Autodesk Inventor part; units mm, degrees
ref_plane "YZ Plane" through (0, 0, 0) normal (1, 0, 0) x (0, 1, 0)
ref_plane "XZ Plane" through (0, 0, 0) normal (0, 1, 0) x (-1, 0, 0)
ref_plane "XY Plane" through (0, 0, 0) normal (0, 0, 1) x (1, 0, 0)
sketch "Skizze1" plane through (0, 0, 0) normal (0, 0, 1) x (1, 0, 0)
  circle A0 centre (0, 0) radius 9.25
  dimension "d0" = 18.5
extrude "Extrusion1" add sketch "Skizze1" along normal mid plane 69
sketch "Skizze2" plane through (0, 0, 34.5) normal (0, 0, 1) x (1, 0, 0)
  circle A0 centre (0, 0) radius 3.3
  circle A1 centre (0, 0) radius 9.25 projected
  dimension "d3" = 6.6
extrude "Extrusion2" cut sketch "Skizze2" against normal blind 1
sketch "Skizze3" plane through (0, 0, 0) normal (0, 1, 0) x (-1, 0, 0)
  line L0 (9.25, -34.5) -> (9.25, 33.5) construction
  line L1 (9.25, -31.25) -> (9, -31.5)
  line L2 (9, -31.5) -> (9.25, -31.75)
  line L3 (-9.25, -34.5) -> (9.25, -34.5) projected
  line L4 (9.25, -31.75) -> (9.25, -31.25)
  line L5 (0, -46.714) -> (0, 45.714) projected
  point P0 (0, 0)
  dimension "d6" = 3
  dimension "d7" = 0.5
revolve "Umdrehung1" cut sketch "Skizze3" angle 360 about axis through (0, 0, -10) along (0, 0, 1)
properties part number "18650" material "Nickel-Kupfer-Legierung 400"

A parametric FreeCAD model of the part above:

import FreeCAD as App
import Part
import Sketcher

V = App.Vector

doc = App.newDocument("Part")
body = doc.addObject("PartDesign::Body", "Body")

sketch1 = doc.addObject("Sketcher::SketchObject", "Sketch")
body.addObject(sketch1)
sketch1.AttachmentSupport = (doc.XY_Plane, [""])
sketch1.MapMode = "FlatFace"
sketch1.addGeometry(Part.Circle(V(0, 0, 0), V(0, 0, 1), 9), False)
sketch1.addConstraint([
    Sketcher.Constraint("Coincident", 0, 3, -1, 1),
    Sketcher.Constraint("Diameter", 0, 18.5),
])
pad1 = doc.addObject("PartDesign::Pad", "Pad")
body.addObject(pad1)
pad1.Profile = sketch1
pad1.Length = 69
pad1.Midplane = True

sketch2 = doc.addObject("Sketcher::SketchObject", "Sketch001")
body.addObject(sketch2)
sketch2.AttachmentSupport = (doc.XY_Plane, [""])
sketch2.MapMode = "FlatFace"
sketch2.AttachmentOffset = App.Placement(V(0, 0, 34.5), App.Rotation())
sketch2.addGeometry([
    Part.Circle(V(0, 0, 0), V(0, 0, 1), 9.2),
    Part.Circle(V(0, 0, 0), V(0, 0, 1), 3.3),
], False)
sketch2.addConstraint([
    Sketcher.Constraint("Coincident", 0, 3, -1, 1),
    Sketcher.Constraint("Coincident", 1, 3, -1, 1),
    Sketcher.Constraint("Diameter", 1, 6.6),
    Sketcher.Constraint("Diameter", 0, 18.5),
])
pocket1 = doc.addObject("PartDesign::Pocket", "Pocket")
body.addObject(pocket1)
pocket1.Profile = sketch2
pocket1.Length = 1

sketch3 = doc.addObject("Sketcher::SketchObject", "Sketch002")
body.addObject(sketch3)
sketch3.AttachmentSupport = (doc.XZ_Plane, [""])
sketch3.MapMode = "FlatFace"
sketch3.addGeometry([
    Part.LineSegment(V(-9.25, -31.75, 0), V(-9.25, -31.25, 0)),
    Part.LineSegment(V(-9.25, -31.25, 0), V(-9, -31.5, 0)),
    Part.LineSegment(V(-9, -31.5, 0), V(-9.25, -31.75, 0)),
], False)
sketch3.addConstraint([
    Sketcher.Constraint("Coincident", 0, 2, 1, 1),
    Sketcher.Constraint("Coincident", 1, 2, 2, 1),
    Sketcher.Constraint("Coincident", 2, 2, 0, 1),
    Sketcher.Constraint("Vertical", 0),
    Sketcher.Constraint("Perpendicular", 1, 2),
    Sketcher.Constraint("Equal", 1, 2),
    Sketcher.Constraint("DistanceY", 0, 1, 0, 2, 0.5),
    Sketcher.Constraint("DistanceX", 1, 2, -1, 1, 9.0),
    Sketcher.Constraint("DistanceY", 1, 2, -1, 1, 31.5),
])
groove = doc.addObject("PartDesign::Groove", "Groove")
body.addObject(groove)
groove.Profile = sketch3
groove.ReferenceAxis = (sketch3, ["V_Axis"])
groove.Angle = 360

doc.recompute()
